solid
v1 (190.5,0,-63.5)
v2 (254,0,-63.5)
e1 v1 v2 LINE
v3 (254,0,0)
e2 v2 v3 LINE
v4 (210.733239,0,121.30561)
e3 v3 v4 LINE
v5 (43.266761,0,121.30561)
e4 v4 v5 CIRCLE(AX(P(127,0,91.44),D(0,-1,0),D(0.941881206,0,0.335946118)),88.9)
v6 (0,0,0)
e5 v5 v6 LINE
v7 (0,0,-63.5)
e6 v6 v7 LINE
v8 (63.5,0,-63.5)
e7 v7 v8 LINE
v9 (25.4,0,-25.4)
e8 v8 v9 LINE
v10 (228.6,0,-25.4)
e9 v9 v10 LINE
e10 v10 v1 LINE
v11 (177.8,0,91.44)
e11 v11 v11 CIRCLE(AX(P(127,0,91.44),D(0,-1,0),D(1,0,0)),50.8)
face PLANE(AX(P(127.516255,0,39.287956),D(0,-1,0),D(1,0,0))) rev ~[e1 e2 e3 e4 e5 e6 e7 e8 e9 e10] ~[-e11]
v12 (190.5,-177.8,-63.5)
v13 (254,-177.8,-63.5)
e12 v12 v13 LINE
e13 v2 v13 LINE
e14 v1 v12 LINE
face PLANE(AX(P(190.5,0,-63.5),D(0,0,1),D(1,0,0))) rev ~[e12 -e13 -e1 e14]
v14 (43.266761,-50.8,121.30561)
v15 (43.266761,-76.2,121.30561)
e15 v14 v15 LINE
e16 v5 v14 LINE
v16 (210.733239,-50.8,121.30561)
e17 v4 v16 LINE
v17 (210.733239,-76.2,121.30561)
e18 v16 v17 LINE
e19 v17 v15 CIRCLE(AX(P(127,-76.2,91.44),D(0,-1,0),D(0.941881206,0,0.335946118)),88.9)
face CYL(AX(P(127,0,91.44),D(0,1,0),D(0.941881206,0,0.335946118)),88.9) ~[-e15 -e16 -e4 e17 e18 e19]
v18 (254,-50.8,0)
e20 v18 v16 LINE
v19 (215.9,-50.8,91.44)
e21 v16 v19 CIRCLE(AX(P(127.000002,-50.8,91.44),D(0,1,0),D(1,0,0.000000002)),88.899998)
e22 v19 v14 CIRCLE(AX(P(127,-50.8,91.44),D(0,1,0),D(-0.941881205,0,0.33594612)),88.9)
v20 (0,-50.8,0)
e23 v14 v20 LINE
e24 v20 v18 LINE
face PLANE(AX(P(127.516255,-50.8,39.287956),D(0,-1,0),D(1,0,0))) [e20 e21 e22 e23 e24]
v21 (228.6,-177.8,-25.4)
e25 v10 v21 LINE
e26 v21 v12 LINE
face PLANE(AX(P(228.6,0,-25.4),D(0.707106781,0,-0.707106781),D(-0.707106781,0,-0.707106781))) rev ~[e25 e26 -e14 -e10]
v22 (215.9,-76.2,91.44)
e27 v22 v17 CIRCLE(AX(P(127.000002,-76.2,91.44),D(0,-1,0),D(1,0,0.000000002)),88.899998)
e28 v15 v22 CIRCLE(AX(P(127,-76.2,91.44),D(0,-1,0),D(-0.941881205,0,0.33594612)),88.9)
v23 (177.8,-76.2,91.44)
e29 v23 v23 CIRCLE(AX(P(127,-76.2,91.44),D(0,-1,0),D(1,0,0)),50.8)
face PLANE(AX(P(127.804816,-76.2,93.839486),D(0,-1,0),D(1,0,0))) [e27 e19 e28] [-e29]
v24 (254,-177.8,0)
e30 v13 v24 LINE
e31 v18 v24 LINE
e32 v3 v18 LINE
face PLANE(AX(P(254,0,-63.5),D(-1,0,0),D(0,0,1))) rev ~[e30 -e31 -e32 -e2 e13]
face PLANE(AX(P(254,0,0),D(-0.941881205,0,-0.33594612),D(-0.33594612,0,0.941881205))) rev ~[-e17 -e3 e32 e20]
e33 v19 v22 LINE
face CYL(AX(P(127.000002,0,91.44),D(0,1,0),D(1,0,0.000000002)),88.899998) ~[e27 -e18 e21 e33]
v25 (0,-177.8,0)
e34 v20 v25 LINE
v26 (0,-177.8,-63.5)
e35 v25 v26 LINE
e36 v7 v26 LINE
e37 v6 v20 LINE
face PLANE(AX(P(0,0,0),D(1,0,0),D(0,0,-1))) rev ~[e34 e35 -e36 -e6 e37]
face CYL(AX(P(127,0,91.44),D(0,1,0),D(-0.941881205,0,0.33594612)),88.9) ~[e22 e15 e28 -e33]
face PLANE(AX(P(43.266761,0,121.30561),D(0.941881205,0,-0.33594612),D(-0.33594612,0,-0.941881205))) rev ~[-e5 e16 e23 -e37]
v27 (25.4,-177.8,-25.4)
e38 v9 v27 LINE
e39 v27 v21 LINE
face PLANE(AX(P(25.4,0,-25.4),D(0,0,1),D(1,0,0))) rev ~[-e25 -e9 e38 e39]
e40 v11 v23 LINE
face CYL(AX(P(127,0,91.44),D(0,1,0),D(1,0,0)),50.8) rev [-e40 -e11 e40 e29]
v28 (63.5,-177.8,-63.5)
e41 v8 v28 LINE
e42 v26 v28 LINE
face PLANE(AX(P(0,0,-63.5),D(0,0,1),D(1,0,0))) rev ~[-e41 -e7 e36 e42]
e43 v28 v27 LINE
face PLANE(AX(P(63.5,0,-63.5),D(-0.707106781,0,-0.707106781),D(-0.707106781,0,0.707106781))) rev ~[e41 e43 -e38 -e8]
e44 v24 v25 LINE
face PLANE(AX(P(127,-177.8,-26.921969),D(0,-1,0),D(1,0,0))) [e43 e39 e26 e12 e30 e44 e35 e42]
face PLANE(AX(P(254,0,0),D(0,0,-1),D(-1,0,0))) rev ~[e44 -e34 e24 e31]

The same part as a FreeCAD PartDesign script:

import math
import FreeCAD as App
import Part
import Sketcher
Q = App.Units.Quantity


def add_polygon(sketch, points):
    """Adds a closed chain of lines whose ends are joined by coincident constraints."""
    first, n = sketch.GeometryCount, len(points)
    for a, b in zip(points, points[1:] + points[:1]):
        sketch.addGeometry(Part.LineSegment(App.Vector(*a, 0), App.Vector(*b, 0)), False)
    for i in range(n):
        sketch.addConstraint(Sketcher.Constraint("Coincident", first + i, 2, first + (i + 1) % n, 1))

doc = App.newDocument("Part")
body = doc.addObject("PartDesign::Body", "Body")

sketch1 = body.newObject("Sketcher::SketchObject", "Sketch")
sketch1.AttachmentSupport = (doc.getObject("XZ_Plane"), [""])
sketch1.MapMode = "FlatFace"
add_polygon(sketch1, [(254, 0), (0, 0), (0, -64), (64, -64), (25, -25), (229, -25), (190, -64), (254, -64)])
sketch1.addConstraint([
    Sketcher.Constraint("Horizontal", 0),
    Sketcher.Constraint("Vertical", 1),
    Sketcher.Constraint("Horizontal", 2),
    Sketcher.Constraint("Horizontal", 4),
    Sketcher.Constraint("Horizontal", 6),
    Sketcher.Constraint("Vertical", 7),
    Sketcher.Constraint("Coincident", 0, 2, -1, 1),
    Sketcher.Constraint("Perpendicular", 3, 5),
    Sketcher.Constraint("Horizontal", 2, 2, 5, 2),
    Sketcher.Constraint("Equal", 2, 6),
    Sketcher.Constraint("Equal", 6, 1),
    Sketcher.Constraint("Equal", 3, 5),
    Sketcher.Constraint("DistanceX", 0, 2, 0, 1, Q("10 in")),
    Sketcher.Constraint("DistanceX", 4, 1, 4, 2, Q("8 in")),
    Sketcher.Constraint("DistanceX", 2, 1, 2, 2, Q("2.5 in")),
])
pad1 = body.newObject("PartDesign::Pad", "Pad")
pad1.Profile = sketch1
pad1.Length = Q("7 in")

sketch2 = body.newObject("Sketcher::SketchObject", "Sketch001")
sketch2.AttachmentSupport = (doc.getObject("XZ_Plane"), [""])
sketch2.MapMode = "FlatFace"
sketch2.addGeometry([
    Part.LineSegment(App.Vector(43, 121, 0), App.Vector(0, 0, 0)),
    Part.LineSegment(App.Vector(0, 0, 0), App.Vector(254, 0, 0)),
    Part.LineSegment(App.Vector(254, 0, 0), App.Vector(211, 121, 0)),
    Part.ArcOfCircle(Part.Circle(App.Vector(127, 91, 0), App.Vector(0, 0, 1), 89), math.radians(20), math.radians(160)),
    Part.Circle(App.Vector(127, 91, 0), App.Vector(0, 0, 1), 51),
], False)
sketch2.addConstraint([
    Sketcher.Constraint("Coincident", 0, 2, 1, 1),
    Sketcher.Constraint("Coincident", 1, 2, 2, 1),
    Sketcher.Constraint("Tangent", 2, 2, 3, 1),
    Sketcher.Constraint("Tangent", 3, 2, 0, 1),
    Sketcher.Constraint("Horizontal", 1),
    Sketcher.Constraint("Coincident", 0, 2, -1, 1),
    Sketcher.Constraint("Coincident", 4, 3, 3, 3),
    Sketcher.Constraint("Horizontal", 2, 2, 3, 2),
    Sketcher.Constraint("Diameter", 4, Q("4 in")),
    Sketcher.Constraint("Radius", 3, Q("3.5 in")),
    Sketcher.Constraint("DistanceX", 1, 1, 1, 2, Q("10 in")),
    Sketcher.Constraint("DistanceY", -1, 1, 3, 3, Q("3.6 in")),
])
pad2 = body.newObject("PartDesign::Pad", "Pad001")
pad2.Profile = sketch2
pad2.Length = Q("2 in")

sketch3 = body.newObject("Sketcher::SketchObject", "Sketch002")
sketch3.AttachmentSupport = (doc.getObject("XZ_Plane"), [""])
sketch3.MapMode = "FlatFace"
sketch3.addGeometry([
    Part.ArcOfCircle(Part.Circle(App.Vector(127, 91, 0), App.Vector(0, 0, 1), 89), math.radians(20), math.radians(160)),
    Part.ArcOfCircle(Part.Circle(App.Vector(127, 91, 0), App.Vector(0, 0, 1), 89), math.radians(160), math.radians(360)),
    Part.ArcOfCircle(Part.Circle(App.Vector(127, 91, 0), App.Vector(0, 0, 1), 89), math.radians(0), math.radians(19.63)),
    Part.Circle(App.Vector(127, 91, 0), App.Vector(0, 0, 1), 51),
], False)
sketch3.addConstraint([
    Sketcher.Constraint("Tangent", 0, 2, 1, 1),
    Sketcher.Constraint("Tangent", 1, 2, 2, 1),
    Sketcher.Constraint("Tangent", 2, 2, 0, 1),
    Sketcher.Constraint("Coincident", 3, 3, 0, 3),
    Sketcher.Constraint("Horizontal", 3, 3, 1, 2),
    Sketcher.Constraint("Horizontal", 0, 2, 2, 2),
    Sketcher.Constraint("Diameter", 3, Q("4 in")),
    Sketcher.Constraint("Radius", 0, Q("3.5 in")),
    Sketcher.Constraint("DistanceX", -1, 1, 0, 3, Q("5 in")),
    Sketcher.Constraint("DistanceY", -1, 1, 0, 3, Q("3.6 in")),
    Sketcher.Constraint("DistanceX", -1, 1, 0, 2, Q("43.266761 mm")),
])
pad3 = body.newObject("PartDesign::Pad", "Pad002")
pad3.Profile = sketch3
pad3.Length = Q("3 in")

doc.recompute()
